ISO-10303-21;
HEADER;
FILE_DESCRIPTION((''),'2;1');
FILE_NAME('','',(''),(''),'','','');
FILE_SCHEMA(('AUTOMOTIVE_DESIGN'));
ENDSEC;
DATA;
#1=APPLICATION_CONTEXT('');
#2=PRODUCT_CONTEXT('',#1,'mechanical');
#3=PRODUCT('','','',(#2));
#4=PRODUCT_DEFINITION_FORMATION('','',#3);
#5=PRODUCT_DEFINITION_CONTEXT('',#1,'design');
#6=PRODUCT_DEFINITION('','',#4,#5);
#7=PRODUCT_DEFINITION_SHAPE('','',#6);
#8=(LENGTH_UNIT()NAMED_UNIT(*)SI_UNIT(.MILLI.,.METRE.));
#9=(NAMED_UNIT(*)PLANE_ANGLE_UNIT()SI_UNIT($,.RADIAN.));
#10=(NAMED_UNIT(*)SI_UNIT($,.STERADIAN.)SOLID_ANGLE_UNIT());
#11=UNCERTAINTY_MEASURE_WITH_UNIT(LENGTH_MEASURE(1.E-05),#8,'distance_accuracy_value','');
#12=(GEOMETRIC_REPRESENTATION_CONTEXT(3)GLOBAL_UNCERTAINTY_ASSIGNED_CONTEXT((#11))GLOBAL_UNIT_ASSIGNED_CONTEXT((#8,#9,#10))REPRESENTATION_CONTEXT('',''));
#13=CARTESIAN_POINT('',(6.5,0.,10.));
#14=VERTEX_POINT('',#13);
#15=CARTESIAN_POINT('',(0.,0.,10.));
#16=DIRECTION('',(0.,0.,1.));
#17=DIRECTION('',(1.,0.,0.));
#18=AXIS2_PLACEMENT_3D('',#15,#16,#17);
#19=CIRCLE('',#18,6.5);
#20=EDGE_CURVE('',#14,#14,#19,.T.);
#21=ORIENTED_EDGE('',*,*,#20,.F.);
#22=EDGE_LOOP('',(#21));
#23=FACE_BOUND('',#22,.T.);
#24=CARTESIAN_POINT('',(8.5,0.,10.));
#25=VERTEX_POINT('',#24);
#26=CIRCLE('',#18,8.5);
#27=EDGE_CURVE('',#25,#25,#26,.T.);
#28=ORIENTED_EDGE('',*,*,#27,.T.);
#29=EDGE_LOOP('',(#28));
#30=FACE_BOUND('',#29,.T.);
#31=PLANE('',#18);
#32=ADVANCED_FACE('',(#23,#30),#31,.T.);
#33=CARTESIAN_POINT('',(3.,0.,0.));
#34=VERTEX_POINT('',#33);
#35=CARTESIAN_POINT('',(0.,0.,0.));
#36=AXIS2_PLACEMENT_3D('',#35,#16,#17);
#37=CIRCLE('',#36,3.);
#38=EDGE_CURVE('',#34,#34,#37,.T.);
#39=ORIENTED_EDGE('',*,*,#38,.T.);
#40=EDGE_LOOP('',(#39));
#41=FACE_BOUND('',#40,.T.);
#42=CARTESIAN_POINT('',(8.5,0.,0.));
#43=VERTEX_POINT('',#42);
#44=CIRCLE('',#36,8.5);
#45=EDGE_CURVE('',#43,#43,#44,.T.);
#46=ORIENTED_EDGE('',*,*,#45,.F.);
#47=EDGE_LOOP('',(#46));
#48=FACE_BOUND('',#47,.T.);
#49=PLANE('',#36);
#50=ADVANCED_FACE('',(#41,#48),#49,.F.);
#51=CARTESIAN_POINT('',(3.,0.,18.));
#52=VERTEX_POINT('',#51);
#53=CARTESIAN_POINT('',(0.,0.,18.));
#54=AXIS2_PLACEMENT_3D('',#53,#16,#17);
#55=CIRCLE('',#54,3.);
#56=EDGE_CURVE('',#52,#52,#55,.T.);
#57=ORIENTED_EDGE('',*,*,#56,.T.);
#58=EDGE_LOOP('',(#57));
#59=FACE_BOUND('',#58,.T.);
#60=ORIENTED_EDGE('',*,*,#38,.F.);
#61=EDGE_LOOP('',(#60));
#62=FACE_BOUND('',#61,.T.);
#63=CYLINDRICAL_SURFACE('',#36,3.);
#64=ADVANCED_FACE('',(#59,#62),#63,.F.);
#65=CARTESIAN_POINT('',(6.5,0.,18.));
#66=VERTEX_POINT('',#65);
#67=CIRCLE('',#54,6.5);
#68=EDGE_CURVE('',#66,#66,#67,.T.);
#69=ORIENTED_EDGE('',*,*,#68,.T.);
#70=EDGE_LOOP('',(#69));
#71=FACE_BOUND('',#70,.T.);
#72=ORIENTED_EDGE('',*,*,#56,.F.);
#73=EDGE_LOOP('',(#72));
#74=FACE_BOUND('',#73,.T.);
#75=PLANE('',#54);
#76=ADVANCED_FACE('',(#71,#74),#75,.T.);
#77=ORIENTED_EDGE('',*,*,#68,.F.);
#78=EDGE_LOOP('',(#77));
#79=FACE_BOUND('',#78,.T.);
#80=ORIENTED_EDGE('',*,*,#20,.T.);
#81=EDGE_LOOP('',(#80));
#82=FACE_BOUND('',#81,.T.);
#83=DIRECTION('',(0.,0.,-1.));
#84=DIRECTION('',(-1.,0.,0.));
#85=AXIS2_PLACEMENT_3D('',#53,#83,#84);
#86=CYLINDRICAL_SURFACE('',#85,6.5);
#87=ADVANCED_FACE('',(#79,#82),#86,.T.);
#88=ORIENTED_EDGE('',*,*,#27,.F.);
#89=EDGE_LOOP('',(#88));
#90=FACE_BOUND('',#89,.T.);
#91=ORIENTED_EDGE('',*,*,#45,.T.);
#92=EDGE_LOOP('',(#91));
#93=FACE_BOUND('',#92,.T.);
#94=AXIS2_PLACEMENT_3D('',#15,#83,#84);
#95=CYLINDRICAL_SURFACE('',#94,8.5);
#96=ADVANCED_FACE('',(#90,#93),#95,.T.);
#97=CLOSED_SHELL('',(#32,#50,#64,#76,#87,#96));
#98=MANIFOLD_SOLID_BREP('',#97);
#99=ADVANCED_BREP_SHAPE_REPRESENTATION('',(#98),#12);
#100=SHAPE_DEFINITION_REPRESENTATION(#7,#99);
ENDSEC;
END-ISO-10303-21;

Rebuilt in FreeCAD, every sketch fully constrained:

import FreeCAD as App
import Part
import Sketcher
from FreeCAD import Vector
Q = App.Units.Quantity

doc = App.newDocument("Part")
body = doc.addObject("PartDesign::Body", "Body")

sketch1 = doc.addObject("Sketcher::SketchObject", "Sketch")
body.addObject(sketch1)
sketch1.AttachmentSupport = (doc.XY_Plane, [""])
sketch1.MapMode = "FlatFace"
sketch1.addGeometry(Part.Circle(Vector(0, 0, 0), Vector(0, 0, 1), 8.5), False)
sketch1.addConstraint([
    Sketcher.Constraint("Coincident", 0, 3, -1, 1),
    Sketcher.Constraint("Diameter", 0, Q("17 mm")),
])
pad1 = doc.addObject("PartDesign::Pad", "Pad")
body.addObject(pad1)
pad1.Profile = sketch1
pad1.Length = 10

sketch2 = doc.addObject("Sketcher::SketchObject", "Sketch001")
body.addObject(sketch2)
sketch2.AttachmentSupport = (doc.XY_Plane, [""])
sketch2.MapMode = "FlatFace"
sketch2.AttachmentOffset = App.Placement(Vector(0, 0, 10), App.Rotation())
sketch2.addGeometry(Part.Circle(Vector(0, 0, 0), Vector(0, 0, 1), 6.5), False)
sketch2.addConstraint([
    Sketcher.Constraint("Coincident", 0, 3, -1, 1),
    Sketcher.Constraint("Diameter", 0, Q("13 mm")),
])
pad2 = doc.addObject("PartDesign::Pad", "Pad001")
body.addObject(pad2)
pad2.Profile = sketch2
pad2.Length = 8

sketch3 = doc.addObject("Sketcher::SketchObject", "Sketch002")
body.addObject(sketch3)
sketch3.AttachmentSupport = (doc.XY_Plane, [""])
sketch3.MapMode = "FlatFace"
sketch3.AttachmentOffset = App.Placement(Vector(0, 0, 18), App.Rotation())
sketch3.addGeometry(Part.Circle(Vector(0, 0, 0), Vector(0, 0, 1), 3), False)
sketch3.addConstraint([
    Sketcher.Constraint("Coincident", 0, 3, -1, 1),
    Sketcher.Constraint("Diameter", 0, Q("6 mm")),
])
pocket1 = doc.addObject("PartDesign::Pocket", "Pocket")
body.addObject(pocket1)
pocket1.Profile = sketch3
pocket1.Type = "ThroughAll"

doc.recompute()
